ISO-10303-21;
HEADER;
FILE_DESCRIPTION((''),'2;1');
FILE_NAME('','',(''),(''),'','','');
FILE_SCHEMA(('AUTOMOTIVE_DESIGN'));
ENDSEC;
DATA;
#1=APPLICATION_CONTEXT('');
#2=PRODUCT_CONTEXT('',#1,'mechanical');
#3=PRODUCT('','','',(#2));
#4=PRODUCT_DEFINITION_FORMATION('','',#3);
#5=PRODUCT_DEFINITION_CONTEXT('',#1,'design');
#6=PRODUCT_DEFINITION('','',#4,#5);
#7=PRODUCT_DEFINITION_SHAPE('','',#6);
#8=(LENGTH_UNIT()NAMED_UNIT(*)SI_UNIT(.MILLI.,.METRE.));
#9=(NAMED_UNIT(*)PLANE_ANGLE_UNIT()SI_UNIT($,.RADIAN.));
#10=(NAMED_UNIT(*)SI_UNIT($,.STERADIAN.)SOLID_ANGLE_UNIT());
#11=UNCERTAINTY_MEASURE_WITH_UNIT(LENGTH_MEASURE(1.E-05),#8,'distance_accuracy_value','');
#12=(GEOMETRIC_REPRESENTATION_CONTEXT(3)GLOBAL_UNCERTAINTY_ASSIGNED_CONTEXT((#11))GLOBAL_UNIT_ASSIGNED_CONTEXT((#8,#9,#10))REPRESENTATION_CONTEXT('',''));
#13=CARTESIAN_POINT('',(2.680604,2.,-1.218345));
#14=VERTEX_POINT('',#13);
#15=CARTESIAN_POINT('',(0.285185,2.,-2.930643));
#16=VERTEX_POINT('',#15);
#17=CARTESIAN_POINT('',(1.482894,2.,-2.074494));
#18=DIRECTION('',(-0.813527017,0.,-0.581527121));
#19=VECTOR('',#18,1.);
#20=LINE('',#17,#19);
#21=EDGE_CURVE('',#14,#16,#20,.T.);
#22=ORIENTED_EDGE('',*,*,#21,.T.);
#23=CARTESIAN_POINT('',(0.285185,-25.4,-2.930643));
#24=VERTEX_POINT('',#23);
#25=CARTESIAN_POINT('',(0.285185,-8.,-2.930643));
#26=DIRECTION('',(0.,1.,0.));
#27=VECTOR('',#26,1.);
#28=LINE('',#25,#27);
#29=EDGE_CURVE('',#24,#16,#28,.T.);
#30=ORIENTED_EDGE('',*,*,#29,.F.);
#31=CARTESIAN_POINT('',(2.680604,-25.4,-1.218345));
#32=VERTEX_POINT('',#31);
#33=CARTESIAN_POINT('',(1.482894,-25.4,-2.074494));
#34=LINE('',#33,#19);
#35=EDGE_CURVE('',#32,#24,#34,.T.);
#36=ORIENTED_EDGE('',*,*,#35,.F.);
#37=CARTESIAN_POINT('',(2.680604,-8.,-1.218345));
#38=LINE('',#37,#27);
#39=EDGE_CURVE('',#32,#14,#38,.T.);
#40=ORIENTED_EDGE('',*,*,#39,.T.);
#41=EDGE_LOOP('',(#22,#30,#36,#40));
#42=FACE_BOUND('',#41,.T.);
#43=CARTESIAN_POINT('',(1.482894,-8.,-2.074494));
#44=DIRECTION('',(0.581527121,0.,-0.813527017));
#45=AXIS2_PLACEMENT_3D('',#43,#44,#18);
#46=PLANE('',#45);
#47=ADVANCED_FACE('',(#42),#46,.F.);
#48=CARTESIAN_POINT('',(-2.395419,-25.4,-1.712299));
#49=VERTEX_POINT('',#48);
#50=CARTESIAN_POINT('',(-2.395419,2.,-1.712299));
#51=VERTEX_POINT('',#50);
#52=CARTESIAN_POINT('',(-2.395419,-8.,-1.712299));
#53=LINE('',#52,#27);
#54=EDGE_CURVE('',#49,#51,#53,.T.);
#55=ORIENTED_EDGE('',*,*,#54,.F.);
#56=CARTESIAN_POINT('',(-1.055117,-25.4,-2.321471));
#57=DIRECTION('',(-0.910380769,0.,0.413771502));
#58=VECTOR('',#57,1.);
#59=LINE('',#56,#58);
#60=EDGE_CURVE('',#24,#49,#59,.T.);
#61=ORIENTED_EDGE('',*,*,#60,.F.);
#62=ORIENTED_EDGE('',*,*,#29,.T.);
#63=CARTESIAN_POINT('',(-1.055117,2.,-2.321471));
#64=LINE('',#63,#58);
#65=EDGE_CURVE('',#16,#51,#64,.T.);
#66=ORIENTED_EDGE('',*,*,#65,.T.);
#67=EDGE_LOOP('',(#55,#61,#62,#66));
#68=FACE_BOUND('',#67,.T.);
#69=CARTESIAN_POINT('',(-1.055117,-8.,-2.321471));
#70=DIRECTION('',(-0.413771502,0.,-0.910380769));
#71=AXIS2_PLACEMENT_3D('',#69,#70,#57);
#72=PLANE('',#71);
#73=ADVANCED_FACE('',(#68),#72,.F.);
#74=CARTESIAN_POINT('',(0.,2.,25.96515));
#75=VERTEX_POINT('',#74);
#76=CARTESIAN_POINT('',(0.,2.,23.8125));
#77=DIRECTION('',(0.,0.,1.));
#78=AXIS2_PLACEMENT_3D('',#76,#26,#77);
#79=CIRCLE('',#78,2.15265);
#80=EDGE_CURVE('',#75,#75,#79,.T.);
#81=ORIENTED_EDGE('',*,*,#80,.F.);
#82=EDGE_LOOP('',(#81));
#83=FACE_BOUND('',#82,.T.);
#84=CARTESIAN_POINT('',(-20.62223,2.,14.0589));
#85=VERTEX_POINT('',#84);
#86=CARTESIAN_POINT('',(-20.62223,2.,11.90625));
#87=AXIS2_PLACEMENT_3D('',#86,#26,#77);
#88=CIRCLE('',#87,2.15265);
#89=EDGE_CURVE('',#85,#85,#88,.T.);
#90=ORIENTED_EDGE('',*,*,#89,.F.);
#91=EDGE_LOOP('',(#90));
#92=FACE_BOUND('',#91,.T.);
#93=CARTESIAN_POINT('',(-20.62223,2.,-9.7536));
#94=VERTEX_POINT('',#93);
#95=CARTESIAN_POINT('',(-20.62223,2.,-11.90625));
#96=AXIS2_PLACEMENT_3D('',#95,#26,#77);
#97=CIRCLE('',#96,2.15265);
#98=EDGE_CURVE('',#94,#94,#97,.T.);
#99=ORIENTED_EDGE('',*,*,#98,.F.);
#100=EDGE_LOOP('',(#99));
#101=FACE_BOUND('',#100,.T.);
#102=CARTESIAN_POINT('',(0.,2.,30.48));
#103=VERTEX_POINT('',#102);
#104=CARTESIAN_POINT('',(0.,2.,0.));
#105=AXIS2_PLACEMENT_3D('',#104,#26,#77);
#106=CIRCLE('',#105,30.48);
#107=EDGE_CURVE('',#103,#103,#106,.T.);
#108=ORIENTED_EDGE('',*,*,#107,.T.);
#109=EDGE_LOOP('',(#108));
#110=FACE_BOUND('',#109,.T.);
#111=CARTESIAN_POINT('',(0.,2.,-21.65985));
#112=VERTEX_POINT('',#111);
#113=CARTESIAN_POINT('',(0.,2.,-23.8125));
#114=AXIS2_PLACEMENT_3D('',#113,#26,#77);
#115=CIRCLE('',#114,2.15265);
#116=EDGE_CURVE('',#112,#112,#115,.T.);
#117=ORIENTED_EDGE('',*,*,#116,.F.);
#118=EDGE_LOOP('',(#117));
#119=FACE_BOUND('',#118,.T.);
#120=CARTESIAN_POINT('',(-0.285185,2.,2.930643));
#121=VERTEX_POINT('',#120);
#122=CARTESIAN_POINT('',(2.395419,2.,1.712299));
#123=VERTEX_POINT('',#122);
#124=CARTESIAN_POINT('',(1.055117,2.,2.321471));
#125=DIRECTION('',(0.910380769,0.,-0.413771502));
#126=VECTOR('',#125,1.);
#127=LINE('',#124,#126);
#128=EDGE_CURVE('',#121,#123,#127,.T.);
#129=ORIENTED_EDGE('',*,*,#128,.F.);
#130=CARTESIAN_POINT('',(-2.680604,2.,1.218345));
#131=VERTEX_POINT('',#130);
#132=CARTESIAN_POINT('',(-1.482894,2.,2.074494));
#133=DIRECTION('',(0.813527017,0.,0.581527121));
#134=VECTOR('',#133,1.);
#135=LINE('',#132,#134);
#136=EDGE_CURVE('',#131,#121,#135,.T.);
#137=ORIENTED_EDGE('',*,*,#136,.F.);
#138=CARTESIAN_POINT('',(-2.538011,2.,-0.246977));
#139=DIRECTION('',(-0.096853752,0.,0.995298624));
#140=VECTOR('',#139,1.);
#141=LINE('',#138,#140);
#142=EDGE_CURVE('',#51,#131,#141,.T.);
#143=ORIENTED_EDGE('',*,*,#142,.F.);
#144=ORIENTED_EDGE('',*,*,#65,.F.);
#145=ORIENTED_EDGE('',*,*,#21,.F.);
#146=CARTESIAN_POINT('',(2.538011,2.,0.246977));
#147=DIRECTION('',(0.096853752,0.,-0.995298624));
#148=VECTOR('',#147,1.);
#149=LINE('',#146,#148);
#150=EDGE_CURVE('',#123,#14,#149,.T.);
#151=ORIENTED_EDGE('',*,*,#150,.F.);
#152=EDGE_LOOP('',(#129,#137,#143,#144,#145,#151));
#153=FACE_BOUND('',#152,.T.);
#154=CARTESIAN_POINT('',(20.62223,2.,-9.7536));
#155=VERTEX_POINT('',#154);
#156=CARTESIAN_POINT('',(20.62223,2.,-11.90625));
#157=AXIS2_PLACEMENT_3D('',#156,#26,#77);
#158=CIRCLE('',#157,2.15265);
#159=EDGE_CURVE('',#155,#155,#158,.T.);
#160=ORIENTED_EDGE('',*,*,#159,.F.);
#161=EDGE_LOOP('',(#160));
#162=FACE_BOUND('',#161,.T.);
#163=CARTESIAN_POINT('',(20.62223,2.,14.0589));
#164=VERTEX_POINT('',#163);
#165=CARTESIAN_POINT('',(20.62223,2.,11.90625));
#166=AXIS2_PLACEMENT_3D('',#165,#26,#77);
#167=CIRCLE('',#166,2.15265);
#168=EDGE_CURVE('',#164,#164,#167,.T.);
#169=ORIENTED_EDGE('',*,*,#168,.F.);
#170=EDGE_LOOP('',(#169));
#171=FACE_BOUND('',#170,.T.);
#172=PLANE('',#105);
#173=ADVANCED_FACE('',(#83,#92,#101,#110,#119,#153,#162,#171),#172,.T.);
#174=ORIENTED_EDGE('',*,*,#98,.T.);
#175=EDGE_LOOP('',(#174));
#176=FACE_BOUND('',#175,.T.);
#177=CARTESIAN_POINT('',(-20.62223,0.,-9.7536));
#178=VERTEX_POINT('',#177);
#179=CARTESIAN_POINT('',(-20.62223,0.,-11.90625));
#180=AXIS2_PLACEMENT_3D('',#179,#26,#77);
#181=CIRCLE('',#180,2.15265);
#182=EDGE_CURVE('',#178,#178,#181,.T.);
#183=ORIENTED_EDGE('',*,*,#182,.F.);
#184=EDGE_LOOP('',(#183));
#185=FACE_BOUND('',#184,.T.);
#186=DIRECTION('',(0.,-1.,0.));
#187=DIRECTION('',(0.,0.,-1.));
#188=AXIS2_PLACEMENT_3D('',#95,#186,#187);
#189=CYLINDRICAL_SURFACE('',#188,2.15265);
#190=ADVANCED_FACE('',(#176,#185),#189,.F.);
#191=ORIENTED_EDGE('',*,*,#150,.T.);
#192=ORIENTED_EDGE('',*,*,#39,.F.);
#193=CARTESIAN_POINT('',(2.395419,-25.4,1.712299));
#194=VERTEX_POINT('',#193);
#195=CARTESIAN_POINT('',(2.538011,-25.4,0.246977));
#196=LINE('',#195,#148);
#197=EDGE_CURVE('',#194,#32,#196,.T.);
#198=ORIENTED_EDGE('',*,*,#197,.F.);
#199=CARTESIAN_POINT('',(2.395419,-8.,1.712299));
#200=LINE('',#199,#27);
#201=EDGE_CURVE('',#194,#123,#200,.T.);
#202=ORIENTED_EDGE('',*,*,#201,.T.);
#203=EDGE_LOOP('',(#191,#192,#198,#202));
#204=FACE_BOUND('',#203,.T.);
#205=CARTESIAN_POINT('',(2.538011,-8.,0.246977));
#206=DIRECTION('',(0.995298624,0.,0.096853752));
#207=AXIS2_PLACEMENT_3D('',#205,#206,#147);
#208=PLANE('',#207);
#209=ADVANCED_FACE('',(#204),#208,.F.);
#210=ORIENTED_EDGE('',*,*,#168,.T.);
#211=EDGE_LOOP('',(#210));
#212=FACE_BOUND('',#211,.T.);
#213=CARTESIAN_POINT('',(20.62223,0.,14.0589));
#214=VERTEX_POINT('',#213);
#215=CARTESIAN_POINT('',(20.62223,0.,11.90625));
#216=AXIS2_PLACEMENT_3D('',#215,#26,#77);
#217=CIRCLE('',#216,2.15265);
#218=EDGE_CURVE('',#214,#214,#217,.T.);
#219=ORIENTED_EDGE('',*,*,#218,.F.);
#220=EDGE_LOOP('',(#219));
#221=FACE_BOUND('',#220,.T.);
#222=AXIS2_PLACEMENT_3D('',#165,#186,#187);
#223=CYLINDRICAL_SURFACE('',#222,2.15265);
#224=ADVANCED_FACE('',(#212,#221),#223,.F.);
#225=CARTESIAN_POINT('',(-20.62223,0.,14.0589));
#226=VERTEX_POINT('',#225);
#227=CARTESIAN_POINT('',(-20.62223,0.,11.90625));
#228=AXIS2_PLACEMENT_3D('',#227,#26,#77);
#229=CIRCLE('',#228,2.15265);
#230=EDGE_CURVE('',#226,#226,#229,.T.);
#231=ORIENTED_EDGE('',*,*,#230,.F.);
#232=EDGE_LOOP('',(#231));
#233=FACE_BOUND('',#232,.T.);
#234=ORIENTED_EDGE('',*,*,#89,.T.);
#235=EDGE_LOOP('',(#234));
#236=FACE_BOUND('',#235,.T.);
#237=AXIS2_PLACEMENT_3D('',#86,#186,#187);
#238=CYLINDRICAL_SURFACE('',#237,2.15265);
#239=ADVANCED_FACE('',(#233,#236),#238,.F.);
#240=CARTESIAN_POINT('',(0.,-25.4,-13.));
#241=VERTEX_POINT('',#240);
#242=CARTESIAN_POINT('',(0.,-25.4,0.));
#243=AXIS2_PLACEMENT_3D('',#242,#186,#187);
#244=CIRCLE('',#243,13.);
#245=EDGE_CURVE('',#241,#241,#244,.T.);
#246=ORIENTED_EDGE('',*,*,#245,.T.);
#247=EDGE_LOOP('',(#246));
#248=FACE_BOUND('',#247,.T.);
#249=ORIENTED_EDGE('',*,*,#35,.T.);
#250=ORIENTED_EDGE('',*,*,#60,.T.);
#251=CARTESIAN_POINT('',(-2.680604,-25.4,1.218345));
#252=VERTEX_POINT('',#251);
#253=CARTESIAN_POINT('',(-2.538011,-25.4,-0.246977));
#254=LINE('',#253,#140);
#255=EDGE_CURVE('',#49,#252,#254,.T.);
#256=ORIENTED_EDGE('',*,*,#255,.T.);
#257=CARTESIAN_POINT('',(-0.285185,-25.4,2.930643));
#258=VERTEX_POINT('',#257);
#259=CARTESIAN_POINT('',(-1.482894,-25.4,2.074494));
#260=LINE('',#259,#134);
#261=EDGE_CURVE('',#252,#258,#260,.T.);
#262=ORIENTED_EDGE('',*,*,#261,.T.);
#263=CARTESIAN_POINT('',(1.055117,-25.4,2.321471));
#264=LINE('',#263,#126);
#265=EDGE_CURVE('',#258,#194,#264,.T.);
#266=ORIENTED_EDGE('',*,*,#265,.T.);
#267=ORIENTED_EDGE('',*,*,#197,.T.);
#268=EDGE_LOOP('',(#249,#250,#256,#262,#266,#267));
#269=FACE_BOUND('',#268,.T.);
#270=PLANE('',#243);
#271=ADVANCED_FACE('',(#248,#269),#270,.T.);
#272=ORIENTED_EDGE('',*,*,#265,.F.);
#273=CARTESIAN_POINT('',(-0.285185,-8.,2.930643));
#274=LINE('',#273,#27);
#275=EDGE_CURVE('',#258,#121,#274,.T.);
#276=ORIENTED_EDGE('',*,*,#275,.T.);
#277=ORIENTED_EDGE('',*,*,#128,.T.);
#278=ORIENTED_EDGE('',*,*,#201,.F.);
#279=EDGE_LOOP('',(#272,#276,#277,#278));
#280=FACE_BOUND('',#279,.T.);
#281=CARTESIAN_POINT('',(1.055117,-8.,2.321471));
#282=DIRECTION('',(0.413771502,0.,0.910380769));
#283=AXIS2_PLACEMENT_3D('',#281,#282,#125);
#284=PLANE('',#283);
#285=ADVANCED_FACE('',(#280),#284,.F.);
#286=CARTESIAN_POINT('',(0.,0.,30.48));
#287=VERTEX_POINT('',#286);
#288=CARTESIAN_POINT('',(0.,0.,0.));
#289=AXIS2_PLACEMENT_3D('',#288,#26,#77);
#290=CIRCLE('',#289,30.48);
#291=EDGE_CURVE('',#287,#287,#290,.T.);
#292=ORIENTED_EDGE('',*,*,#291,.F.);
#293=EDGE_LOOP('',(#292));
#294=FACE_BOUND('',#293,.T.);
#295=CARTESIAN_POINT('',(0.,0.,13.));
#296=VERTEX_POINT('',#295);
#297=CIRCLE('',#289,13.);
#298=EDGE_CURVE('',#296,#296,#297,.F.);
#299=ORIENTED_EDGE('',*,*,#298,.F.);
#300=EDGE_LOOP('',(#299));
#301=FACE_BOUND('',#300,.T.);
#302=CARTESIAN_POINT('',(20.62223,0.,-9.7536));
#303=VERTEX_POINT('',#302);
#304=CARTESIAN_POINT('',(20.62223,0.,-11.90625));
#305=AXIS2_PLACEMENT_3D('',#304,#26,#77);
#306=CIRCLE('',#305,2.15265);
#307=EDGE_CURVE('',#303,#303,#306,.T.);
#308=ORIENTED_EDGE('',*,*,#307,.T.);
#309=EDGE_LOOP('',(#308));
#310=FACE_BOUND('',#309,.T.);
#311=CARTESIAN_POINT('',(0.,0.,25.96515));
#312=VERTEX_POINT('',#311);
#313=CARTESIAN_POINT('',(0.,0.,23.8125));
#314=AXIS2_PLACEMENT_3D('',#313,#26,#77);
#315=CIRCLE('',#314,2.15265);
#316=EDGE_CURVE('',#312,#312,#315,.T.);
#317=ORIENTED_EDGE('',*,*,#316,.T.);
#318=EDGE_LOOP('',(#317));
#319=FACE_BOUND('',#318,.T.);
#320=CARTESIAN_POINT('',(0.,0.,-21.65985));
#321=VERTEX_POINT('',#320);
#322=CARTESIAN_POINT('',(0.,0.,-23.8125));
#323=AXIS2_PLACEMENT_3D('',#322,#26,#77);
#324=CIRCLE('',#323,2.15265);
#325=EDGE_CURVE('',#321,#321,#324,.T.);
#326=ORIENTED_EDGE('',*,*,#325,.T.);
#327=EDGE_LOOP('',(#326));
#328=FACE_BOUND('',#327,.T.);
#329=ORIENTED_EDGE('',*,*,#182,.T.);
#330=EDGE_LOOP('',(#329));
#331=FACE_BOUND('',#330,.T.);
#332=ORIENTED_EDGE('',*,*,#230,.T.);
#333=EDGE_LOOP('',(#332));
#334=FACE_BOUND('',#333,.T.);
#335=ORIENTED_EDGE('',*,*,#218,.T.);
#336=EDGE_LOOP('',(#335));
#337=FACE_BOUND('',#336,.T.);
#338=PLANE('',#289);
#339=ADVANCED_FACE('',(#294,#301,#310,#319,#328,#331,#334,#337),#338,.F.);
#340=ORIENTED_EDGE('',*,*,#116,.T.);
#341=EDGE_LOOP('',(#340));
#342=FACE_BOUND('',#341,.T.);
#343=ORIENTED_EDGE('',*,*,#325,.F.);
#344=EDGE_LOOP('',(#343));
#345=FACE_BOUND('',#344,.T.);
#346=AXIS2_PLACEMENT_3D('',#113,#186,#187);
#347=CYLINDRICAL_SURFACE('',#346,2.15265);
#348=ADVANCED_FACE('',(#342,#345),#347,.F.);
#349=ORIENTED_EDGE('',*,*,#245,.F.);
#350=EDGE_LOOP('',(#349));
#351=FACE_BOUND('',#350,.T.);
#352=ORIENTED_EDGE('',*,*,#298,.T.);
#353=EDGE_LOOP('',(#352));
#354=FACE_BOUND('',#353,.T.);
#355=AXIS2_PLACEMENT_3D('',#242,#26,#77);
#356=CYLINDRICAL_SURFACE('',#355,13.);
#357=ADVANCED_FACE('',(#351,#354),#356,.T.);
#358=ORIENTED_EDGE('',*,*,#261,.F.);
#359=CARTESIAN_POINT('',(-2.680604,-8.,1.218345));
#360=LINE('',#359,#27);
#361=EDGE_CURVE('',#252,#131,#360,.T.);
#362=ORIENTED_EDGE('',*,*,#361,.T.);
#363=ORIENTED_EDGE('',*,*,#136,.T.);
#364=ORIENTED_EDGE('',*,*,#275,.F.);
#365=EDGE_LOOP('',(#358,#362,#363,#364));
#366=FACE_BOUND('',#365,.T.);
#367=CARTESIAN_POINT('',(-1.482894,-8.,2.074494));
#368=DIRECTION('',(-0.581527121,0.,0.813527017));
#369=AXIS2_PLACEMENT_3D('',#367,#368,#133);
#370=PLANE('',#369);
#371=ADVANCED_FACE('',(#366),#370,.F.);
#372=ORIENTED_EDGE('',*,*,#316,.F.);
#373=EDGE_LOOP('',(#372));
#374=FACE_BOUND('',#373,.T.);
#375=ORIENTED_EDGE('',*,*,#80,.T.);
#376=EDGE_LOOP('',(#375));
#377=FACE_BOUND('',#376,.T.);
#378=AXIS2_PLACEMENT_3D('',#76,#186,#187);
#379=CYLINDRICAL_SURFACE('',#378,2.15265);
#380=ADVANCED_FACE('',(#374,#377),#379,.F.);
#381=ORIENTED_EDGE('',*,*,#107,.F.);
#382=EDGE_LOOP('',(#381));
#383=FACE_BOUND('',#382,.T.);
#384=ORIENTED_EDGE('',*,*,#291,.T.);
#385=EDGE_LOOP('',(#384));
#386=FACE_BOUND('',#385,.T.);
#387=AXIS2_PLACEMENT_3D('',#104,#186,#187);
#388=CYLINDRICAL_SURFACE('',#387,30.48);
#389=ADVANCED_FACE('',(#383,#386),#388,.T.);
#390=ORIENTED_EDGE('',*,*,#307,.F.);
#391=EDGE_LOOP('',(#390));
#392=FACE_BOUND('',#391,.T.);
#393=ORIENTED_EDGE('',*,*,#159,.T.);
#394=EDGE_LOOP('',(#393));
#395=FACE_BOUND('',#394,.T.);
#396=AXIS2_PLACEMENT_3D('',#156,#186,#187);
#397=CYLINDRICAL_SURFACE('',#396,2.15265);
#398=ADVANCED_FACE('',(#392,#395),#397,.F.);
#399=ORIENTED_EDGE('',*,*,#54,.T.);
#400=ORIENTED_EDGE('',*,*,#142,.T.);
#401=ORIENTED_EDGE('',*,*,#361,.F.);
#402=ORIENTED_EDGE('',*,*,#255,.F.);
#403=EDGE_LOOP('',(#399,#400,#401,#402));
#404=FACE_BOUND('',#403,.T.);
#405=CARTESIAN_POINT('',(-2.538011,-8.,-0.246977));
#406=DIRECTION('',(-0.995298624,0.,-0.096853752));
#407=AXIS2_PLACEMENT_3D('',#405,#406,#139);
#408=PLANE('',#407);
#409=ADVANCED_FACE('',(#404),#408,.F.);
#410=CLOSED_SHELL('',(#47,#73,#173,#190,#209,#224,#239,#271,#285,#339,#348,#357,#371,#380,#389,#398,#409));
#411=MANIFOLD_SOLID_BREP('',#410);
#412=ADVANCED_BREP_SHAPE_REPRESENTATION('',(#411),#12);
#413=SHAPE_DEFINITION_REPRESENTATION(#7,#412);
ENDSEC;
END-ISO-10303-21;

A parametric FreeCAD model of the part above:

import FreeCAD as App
import Part
import Sketcher

V = App.Vector


def add_polygon(sketch, points):
    """Adds a closed chain of lines whose ends are joined by coincident constraints."""
    first, n = sketch.GeometryCount, len(points)
    for a, b in zip(points, points[1:] + points[:1]):
        sketch.addGeometry(Part.LineSegment(App.Vector(*a, 0), App.Vector(*b, 0)), False)
    for i in range(n):
        sketch.addConstraint(Sketcher.Constraint("Coincident", first + i, 2, first + (i + 1) % n, 1))

doc = App.newDocument("Part")
body = doc.addObject("PartDesign::Body", "Body")

# Sketch on XZ plane
sketch1 = body.newObject("Sketcher::SketchObject", "Sketch")
sketch1.AttachmentSupport = (doc.getObject("XZ_Plane"), [""])
sketch1.MapMode = "FlatFace"
sketch1.addGeometry([
    Part.Circle(V(0, 0, 0), V(0, 0, 1), 30.5),  # 0
    Part.Circle(V(-20.6, -11.9, 0), V(0, 0, 1), 2.2),  # 1
    Part.Circle(V(0, -23.8, 0), V(0, 0, 1), 2.2),  # 2
    Part.Circle(V(-20.6, 11.9, 0), V(0, 0, 1), 2.2),  # 3
    Part.Circle(V(20.6, -11.9, 0), V(0, 0, 1), 2.2),  # 4
    Part.Circle(V(0, 23.8, 0), V(0, 0, 1), 2.2),  # 5
    Part.Circle(V(20.6, 11.9, 0), V(0, 0, 1), 2.2),  # 6
], False)
sketch1.addConstraint([
    Sketcher.Constraint("Coincident", 0, 3, -1, 1),
    Sketcher.Constraint("Equal", 1, 2),
    Sketcher.Constraint("Equal", 2, 3),
    Sketcher.Constraint("Equal", 3, 4),
    Sketcher.Constraint("Equal", 4, 5),
    Sketcher.Constraint("Equal", 5, 6),
    Sketcher.Constraint("Symmetric", 3, 3, 4, 3, -1, 1),
    Sketcher.Constraint("Symmetric", 2, 3, 5, 3, -1, 1),
    Sketcher.Constraint("Symmetric", 1, 3, 6, 3, -1, 1),
    Sketcher.Constraint("Symmetric", 1, 3, 4, 3, -2),
    Sketcher.Constraint("PointOnObject", 2, 3, -2),
    Sketcher.Constraint("Diameter", 0, 60.96),
    Sketcher.Constraint("Diameter", 1, 4.3053),
    Sketcher.Constraint("DistanceY", 2, 3, 5, 3, 47.625),
    Sketcher.Constraint("DistanceY", 1, 3, 3, 3, 23.8125),
    Sketcher.Constraint("DistanceX", 1, 3, -1, 1, 20.62223),
])
pad1 = body.newObject("PartDesign::Pad", "Pad")
pad1.Profile = sketch1
pad1.Length = 2
pad1.Reversed = True

# Sketch on XZ plane
sketch2 = body.newObject("Sketcher::SketchObject", "Sketch001")
sketch2.AttachmentSupport = (doc.getObject("XZ_Plane"), [""])
sketch2.MapMode = "FlatFace"
sketch2.AttachmentOffset = App.Placement(V(0, 0, -2), App.Rotation())
add_polygon(sketch2, [(-2.7, 1.2), (-0.3, 2.9), (2.4, 1.7), (2.7, -1.2), (0.3, -2.9), (-2.4, -1.7)])  # lines 0-5
sketch2.addConstraint([
    Sketcher.Constraint("Symmetric", 0, 2, 3, 2, -1, 1),
    Sketcher.Constraint("Symmetric", 1, 2, 4, 2, -1, 1),
    Sketcher.Constraint("Symmetric", 2, 2, 5, 2, -1, 1),
    Sketcher.Constraint("Equal", 0, 1),
    Sketcher.Constraint("Equal", 1, 2),
    Sketcher.Constraint("DistanceY", -1, 1, 1, 2, 1.712299),
    Sketcher.Constraint("DistanceY", 3, 2, 2, 2, 1.712299),
    Sketcher.Constraint("DistanceX", -1, 1, 1, 2, 2.395419),
    Sketcher.Constraint("DistanceX", 0, 2, 2, 2, 2.965788),
])
pocket1 = body.newObject("PartDesign::Pocket", "Pocket")
pocket1.Profile = sketch2
pocket1.Length = 10
pocket1.Reversed = True

# Sketch on XZ plane
sketch3 = body.newObject("Sketcher::SketchObject", "Sketch002")
sketch3.AttachmentSupport = (doc.getObject("XZ_Plane"), [""])
sketch3.MapMode = "FlatFace"
sketch3.addGeometry(Part.Circle(V(0, 0, 0), V(0, 0, 1), 13), False)  # 0
add_polygon(sketch3, [(-2.7, 1.2), (-0.3, 2.9), (2.4, 1.7), (2.7, -1.2), (0.3, -2.9), (-2.4, -1.7)])  # lines 1-6
sketch3.addConstraint([
    Sketcher.Constraint("Coincident", 0, 3, -1, 1),
    Sketcher.Constraint("Symmetric", 1, 2, 4, 2, -1, 1),
    Sketcher.Constraint("Symmetric", 2, 2, 5, 2, -1, 1),
    Sketcher.Constraint("Symmetric", 3, 2, 6, 2, -1, 1),
    Sketcher.Constraint("Equal", 1, 2),
    Sketcher.Constraint("Equal", 2, 3),
    Sketcher.Constraint("Diameter", 0, 26.0),
    Sketcher.Constraint("DistanceY", -1, 1, 2, 2, 1.712299),
    Sketcher.Constraint("DistanceY", 4, 2, 3, 2, 1.712299),
    Sketcher.Constraint("DistanceX", -1, 1, 2, 2, 2.395419),
    Sketcher.Constraint("DistanceX", 1, 2, 3, 2, 2.965788),
])
pad2 = body.newObject("PartDesign::Pad", "Pad001")
pad2.Profile = sketch3
pad2.Length = 25.4

doc.recompute()
